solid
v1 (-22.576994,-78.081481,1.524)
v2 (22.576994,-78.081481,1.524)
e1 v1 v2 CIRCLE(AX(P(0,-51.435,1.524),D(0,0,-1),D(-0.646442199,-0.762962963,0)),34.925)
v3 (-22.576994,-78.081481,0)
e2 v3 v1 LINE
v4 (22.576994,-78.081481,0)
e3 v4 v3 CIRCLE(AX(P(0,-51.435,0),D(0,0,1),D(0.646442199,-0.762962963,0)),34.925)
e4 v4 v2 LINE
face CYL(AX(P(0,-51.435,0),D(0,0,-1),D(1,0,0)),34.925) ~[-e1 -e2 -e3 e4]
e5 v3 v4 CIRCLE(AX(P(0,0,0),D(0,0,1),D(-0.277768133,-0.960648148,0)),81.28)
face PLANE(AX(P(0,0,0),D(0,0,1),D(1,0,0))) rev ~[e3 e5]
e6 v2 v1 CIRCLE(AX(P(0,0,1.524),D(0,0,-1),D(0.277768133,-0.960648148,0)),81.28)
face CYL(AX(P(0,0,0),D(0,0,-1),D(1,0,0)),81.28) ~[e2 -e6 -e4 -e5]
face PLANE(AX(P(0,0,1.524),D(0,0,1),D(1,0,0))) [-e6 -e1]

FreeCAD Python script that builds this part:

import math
import FreeCAD as App
import Part
import Sketcher
from FreeCAD import Vector
Q = App.Units.Quantity

doc = App.newDocument("Part")
body = doc.addObject("PartDesign::Body", "Body")

# Sketch on XY plane
sketch1 = doc.addObject("Sketcher::SketchObject", "Sketch")
body.addObject(sketch1)
sketch1.AttachmentSupport = (doc.XY_Plane, [""])
sketch1.MapMode = "FlatFace"
sketch1.addGeometry([
    Part.ArcOfCircle(Part.Circle(Vector(0, 0, 0), Vector(0, 0, 1), 81.28), math.radians(-106.127045), math.radians(-73.872955)),
    Part.ArcOfCircle(Part.Circle(Vector(0, -51.435, 0), Vector(0, 0, 1), 34.925), math.radians(-49.726107), math.radians(229.726107)),
], False)
sketch1.addConstraint([
    Sketcher.Constraint("Coincident", 0, 1, 1, 2),
    Sketcher.Constraint("Coincident", 1, 1, 0, 2),
    Sketcher.Constraint("Coincident", 0, 3, -1, 1),
    Sketcher.Constraint("PointOnObject", 1, 3, -2),
    Sketcher.Constraint("Radius", 0, Q("3.2 in")),
    Sketcher.Constraint("Radius", 1, Q("1.375 in")),
    Sketcher.Constraint("DistanceY", 1, 3, -1, 1, Q("2.025 in")),
])
pad1 = doc.addObject("PartDesign::Pad", "Pad")
body.addObject(pad1)
pad1.Profile = sketch1
pad1.Length = Q("0.06 in")

doc.recompute()
